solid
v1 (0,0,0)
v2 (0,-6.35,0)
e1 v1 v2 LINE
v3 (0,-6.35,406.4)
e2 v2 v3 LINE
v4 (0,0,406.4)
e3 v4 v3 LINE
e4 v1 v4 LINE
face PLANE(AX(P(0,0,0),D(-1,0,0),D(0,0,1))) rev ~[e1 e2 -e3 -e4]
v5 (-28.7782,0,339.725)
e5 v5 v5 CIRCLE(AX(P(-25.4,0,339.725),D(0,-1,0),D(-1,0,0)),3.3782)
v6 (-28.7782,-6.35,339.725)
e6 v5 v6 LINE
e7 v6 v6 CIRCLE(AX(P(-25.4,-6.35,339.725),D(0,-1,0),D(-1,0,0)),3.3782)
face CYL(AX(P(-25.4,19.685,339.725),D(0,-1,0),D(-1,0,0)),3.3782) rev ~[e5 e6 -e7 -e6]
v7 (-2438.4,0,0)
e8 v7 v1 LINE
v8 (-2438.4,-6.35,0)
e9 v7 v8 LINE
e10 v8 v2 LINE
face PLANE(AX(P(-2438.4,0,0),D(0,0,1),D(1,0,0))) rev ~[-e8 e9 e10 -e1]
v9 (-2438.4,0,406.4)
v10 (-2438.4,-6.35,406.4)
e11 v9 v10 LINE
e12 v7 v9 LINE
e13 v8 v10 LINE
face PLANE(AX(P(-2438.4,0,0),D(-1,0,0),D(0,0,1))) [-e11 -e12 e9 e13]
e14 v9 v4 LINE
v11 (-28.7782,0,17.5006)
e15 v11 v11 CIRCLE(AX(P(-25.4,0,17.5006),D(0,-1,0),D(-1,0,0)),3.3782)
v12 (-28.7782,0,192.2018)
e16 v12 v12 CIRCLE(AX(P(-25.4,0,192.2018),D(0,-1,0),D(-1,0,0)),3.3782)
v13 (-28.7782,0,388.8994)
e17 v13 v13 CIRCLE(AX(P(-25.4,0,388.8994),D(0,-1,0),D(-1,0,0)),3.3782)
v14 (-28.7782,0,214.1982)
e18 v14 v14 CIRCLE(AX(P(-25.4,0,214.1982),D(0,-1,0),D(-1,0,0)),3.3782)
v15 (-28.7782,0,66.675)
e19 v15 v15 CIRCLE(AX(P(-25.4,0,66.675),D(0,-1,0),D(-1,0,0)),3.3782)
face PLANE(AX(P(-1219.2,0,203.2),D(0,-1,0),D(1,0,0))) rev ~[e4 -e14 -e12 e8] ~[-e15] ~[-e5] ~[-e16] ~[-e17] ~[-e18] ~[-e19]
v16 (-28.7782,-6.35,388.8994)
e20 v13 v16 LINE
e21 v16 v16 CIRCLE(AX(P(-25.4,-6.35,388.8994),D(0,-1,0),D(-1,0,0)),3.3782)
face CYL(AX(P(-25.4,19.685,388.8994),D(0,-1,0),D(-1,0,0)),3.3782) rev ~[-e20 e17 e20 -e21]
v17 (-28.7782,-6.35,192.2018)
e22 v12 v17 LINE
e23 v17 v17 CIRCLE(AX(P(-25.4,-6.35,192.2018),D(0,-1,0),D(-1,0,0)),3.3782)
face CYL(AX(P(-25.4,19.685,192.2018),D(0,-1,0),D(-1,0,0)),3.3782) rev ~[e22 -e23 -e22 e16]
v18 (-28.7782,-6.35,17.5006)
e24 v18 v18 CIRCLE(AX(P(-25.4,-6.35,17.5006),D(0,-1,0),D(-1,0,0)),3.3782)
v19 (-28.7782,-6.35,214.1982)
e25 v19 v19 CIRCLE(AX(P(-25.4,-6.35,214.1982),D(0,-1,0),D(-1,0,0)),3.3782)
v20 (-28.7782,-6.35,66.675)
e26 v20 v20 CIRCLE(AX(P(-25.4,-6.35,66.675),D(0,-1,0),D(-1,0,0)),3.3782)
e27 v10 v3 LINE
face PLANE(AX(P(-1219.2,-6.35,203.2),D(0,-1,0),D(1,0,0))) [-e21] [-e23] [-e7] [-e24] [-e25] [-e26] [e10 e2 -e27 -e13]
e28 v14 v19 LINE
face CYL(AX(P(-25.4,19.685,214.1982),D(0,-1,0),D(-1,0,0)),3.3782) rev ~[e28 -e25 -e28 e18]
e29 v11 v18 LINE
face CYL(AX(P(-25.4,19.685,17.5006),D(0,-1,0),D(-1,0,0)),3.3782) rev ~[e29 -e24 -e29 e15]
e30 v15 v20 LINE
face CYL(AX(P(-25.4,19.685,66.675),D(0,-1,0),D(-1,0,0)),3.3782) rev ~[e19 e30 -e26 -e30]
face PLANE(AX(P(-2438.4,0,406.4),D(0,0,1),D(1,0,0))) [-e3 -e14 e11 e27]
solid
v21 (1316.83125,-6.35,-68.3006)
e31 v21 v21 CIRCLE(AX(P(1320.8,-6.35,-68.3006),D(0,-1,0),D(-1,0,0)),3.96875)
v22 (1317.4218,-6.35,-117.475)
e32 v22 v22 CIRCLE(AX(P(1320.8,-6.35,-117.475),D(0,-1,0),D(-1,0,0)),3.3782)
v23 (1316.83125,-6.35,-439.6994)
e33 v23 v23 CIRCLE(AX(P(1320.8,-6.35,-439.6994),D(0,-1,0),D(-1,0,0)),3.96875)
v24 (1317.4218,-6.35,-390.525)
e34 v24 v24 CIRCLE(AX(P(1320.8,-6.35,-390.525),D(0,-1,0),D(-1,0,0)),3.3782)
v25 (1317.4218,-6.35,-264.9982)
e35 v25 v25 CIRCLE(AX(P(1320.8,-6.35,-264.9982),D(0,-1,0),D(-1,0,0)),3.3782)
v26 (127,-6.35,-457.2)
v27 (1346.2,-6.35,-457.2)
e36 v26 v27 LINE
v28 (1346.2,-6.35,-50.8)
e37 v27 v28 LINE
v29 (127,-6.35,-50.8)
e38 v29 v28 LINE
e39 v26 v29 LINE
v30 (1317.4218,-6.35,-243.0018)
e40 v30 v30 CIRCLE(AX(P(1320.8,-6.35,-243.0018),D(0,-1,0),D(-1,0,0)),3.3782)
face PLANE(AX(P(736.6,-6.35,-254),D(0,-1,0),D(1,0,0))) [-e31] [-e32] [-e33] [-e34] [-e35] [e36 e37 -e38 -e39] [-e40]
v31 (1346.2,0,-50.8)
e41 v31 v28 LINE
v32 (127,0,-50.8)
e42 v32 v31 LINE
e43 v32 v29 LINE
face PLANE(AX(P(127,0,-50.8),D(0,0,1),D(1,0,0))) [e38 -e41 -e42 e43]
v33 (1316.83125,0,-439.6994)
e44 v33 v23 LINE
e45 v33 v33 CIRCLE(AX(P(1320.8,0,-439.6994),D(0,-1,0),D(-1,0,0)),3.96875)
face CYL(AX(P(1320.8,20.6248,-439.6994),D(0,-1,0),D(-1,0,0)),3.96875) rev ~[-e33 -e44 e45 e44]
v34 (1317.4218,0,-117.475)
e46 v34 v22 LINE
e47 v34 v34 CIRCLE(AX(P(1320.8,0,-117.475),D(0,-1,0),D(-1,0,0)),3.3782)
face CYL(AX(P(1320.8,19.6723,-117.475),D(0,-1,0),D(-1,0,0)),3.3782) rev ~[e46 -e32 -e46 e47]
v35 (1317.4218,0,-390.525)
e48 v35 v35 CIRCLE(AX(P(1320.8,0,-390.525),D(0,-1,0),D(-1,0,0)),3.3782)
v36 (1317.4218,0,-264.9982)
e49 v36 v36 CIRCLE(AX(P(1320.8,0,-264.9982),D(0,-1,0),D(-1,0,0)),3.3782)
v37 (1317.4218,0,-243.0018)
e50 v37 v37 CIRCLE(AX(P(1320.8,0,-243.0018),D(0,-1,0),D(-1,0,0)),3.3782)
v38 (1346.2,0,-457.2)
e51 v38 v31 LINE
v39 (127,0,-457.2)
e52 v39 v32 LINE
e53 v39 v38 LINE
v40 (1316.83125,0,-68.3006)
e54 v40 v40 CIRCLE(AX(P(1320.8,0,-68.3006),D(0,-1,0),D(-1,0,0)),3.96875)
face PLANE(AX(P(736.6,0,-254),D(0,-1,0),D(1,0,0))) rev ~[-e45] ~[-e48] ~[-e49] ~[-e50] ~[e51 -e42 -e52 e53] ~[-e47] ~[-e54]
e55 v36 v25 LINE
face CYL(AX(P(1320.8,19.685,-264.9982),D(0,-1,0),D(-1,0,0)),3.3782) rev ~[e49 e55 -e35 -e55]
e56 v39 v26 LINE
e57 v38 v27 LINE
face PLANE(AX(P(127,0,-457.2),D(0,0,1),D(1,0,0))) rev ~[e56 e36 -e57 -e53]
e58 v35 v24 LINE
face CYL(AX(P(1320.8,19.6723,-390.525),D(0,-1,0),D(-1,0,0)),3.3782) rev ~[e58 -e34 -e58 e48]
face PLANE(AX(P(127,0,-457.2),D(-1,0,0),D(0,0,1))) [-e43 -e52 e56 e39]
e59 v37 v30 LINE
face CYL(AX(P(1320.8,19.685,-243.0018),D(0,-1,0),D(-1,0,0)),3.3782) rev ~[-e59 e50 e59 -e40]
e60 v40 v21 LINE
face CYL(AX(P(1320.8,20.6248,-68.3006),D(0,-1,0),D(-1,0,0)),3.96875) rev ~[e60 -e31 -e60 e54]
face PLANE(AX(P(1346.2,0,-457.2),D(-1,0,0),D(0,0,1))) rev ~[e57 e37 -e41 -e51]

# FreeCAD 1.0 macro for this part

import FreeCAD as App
import Part
import Sketcher
Q = App.Units.Quantity


def add_polygon(sketch, points):
    """Adds a closed chain of lines whose ends are joined by coincident constraints."""
    first, n = sketch.GeometryCount, len(points)
    for a, b in zip(points, points[1:] + points[:1]):
        sketch.addGeometry(Part.LineSegment(App.Vector(*a, 0), App.Vector(*b, 0)), False)
    for i in range(n):
        sketch.addConstraint(Sketcher.Constraint("Coincident", first + i, 2, first + (i + 1) % n, 1))

doc = App.newDocument("Part")
body = doc.addObject("PartDesign::Body", "Body")

# Sketch on XZ plane
sketch1 = body.newObject("Sketcher::SketchObject", "Sketch")
sketch1.AttachmentSupport = (doc.getObject("XZ_Plane"), [""])
sketch1.MapMode = "FlatFace"
add_polygon(sketch1, [(-2438, 406), (-2438, 0), (0, 0), (0, 406)])  # lines 0-3
sketch1.addConstraint(Sketcher.Constraint("Vertical", 0))
sketch1.addConstraint(Sketcher.Constraint("Horizontal", 1))
sketch1.addConstraint(Sketcher.Constraint("Vertical", 2))
sketch1.addConstraint(Sketcher.Constraint("Horizontal", 3))
sketch1.addConstraint(Sketcher.Constraint("Coincident", 1, 2, -1, 1))
sketch1.addConstraint(Sketcher.Constraint("DistanceX", 1, 1, 1, 2, Q("96 in")))
sketch1.addConstraint(Sketcher.Constraint("DistanceY", 0, 2, 0, 1, Q("16 in")))
pad1 = body.newObject("PartDesign::Pad", "Pad")
pad1.Profile = sketch1
pad1.Length = Q("0.25 in")

# Sketch on XZ plane
sketch2 = body.newObject("Sketcher::SketchObject", "Sketch001")
sketch2.AttachmentSupport = (doc.getObject("XZ_Plane"), [""])
sketch2.MapMode = "FlatFace"
sketch2.addGeometry(Part.Circle(App.Vector(-25.4, 388.9, 0), App.Vector(0, 0, 1), 3.4), False)
sketch2.addGeometry(Part.Circle(App.Vector(-25.4, 339.7, 0), App.Vector(0, 0, 1), 3.4), False)
sketch2.addGeometry(Part.Circle(App.Vector(-25.4, 66.7, 0), App.Vector(0, 0, 1), 3.4), False)
sketch2.addGeometry(Part.Circle(App.Vector(-25.4, 17.5, 0), App.Vector(0, 0, 1), 3.4), False)
sketch2.addConstraint(Sketcher.Constraint("Equal", 0, 1))
sketch2.addConstraint(Sketcher.Constraint("Equal", 1, 2))
sketch2.addConstraint(Sketcher.Constraint("Equal", 2, 3))
sketch2.addConstraint(Sketcher.Constraint("Vertical", 0, 3, 1, 3))
sketch2.addConstraint(Sketcher.Constraint("Vertical", 1, 3, 2, 3))
sketch2.addConstraint(Sketcher.Constraint("Vertical", 2, 3, 3, 3))
sketch2.addConstraint(Sketcher.Constraint("Diameter", 0, Q("0.266 in")))
sketch2.addConstraint(Sketcher.Constraint("DistanceX", 0, 3, -1, 1, Q("1 in")))
sketch2.addConstraint(Sketcher.Constraint("DistanceY", 2, 3, 1, 3, Q("10.75 in")))
sketch2.addConstraint(Sketcher.Constraint("DistanceY", -1, 1, 0, 3, Q("15.311 in")))
sketch2.addConstraint(Sketcher.Constraint("DistanceY", -1, 1, 1, 3, Q("13.375 in")))
sketch2.addConstraint(Sketcher.Constraint("DistanceY", -1, 1, 3, 3, Q("0.689 in")))
doc.recompute()
hole = body.newObject("PartDesign::Hole", "Hole")
hole.Profile = sketch2
hole.ThreadType = "None"
hole.Diameter = Q("0.266 in")
hole.DepthType = "Dimension"
hole.Depth = Q("0.775 in")
hole.DrillPoint = "Angled"
hole.DrillPointAngle = 118
hole.Reversed = True

# Sketch on XZ plane
sketch3 = body.newObject("Sketcher::SketchObject", "Sketch002")
sketch3.AttachmentSupport = (doc.getObject("XZ_Plane"), [""])
sketch3.MapMode = "FlatFace"
sketch3.addGeometry(Part.Circle(App.Vector(-25.4, 214.2, 0), App.Vector(0, 0, 1), 3.4), False)
sketch3.addGeometry(Part.Circle(App.Vector(-25.4, 192.2, 0), App.Vector(0, 0, 1), 3.4), False)
sketch3.addConstraint(Sketcher.Constraint("Equal", 0, 1))
sketch3.addConstraint(Sketcher.Constraint("Vertical", 0, 3, 1, 3))
sketch3.addConstraint(Sketcher.Constraint("Diameter", 0, Q("0.266 in")))
sketch3.addConstraint(Sketcher.Constraint("DistanceX", 0, 3, -1, 1, Q("1 in")))
sketch3.addConstraint(Sketcher.Constraint("DistanceY", -1, 1, 0, 3, Q("8.433 in")))
sketch3.addConstraint(Sketcher.Constraint("DistanceY", -1, 1, 1, 3, Q("7.567 in")))
doc.recompute()
hole2 = body.newObject("PartDesign::Hole", "Hole001")
hole2.Profile = sketch3
hole2.ThreadType = "None"
hole2.Diameter = Q("0.266 in")
hole2.DepthType = "Dimension"
hole2.Depth = Q("0.775 in")
hole2.DrillPoint = "Angled"
hole2.DrillPointAngle = 118
hole2.Reversed = True
body2 = doc.addObject("PartDesign::Body", "Body001")

# Sketch on XZ plane
sketch4 = body2.newObject("Sketcher::SketchObject", "Sketch003")
sketch4.AttachmentSupport = (doc.getObject("XZ_Plane001"), [""])
sketch4.MapMode = "FlatFace"
add_polygon(sketch4, [(127, -51), (127, -457), (1346, -457), (1346, -51)])  # lines 0-3
sketch4.addConstraint(Sketcher.Constraint("Vertical", 0))
sketch4.addConstraint(Sketcher.Constraint("Horizontal", 1))
sketch4.addConstraint(Sketcher.Constraint("Vertical", 2))
sketch4.addConstraint(Sketcher.Constraint("Horizontal", 3))
sketch4.addConstraint(Sketcher.Constraint("DistanceX", 1, 1, 1, 2, Q("48 in")))
sketch4.addConstraint(Sketcher.Constraint("DistanceY", 0, 2, 0, 1, Q("16 in")))
sketch4.addConstraint(Sketcher.Constraint("DistanceX", -1, 1, 0, 2, Q("5 in")))
sketch4.addConstraint(Sketcher.Constraint("DistanceY", 0, 2, -1, 1, Q("18 in")))
pad2 = body2.newObject("PartDesign::Pad", "Pad001")
pad2.Profile = sketch4
pad2.Length = Q("0.25 in")

# Sketch on XZ plane
sketch5 = body2.newObject("Sketcher::SketchObject", "Sketch004")
sketch5.AttachmentSupport = (doc.getObject("XZ_Plane001"), [""])
sketch5.MapMode = "FlatFace"
sketch5.addGeometry(Part.Circle(App.Vector(1320.8, -68.3, 0), App.Vector(0, 0, 1), 4), False)
sketch5.addGeometry(Part.Circle(App.Vector(1320.8, -439.7, 0), App.Vector(0, 0, 1), 4), False)
sketch5.addConstraint(Sketcher.Constraint("Equal", 0, 1))
sketch5.addConstraint(Sketcher.Constraint("Vertical", 0, 3, 1, 3))
sketch5.addConstraint(Sketcher.Constraint("Diameter", 0, Q("0.3125 in")))
sketch5.addConstraint(Sketcher.Constraint("DistanceX", -1, 1, 0, 3, Q("52 in")))
sketch5.addConstraint(Sketcher.Constraint("DistanceY", 0, 3, -1, 1, Q("2.689 in")))
sketch5.addConstraint(Sketcher.Constraint("DistanceY", 1, 3, -1, 1, Q("17.311 in")))
doc.recompute()
hole3 = body2.newObject("PartDesign::Hole", "Hole002")
hole3.Profile = sketch5
hole3.ThreadType = "None"
hole3.Diameter = Q("0.3125 in")
hole3.DepthType = "Dimension"
hole3.Depth = Q("0.812 in")
hole3.DrillPoint = "Angled"
hole3.DrillPointAngle = 118
hole3.Reversed = True

# Sketch on XZ plane
sketch6 = body2.newObject("Sketcher::SketchObject", "Sketch005")
sketch6.AttachmentSupport = (doc.getObject("XZ_Plane001"), [""])
sketch6.MapMode = "FlatFace"
sketch6.addGeometry(Part.Circle(App.Vector(1320.8, -68.3, 0), App.Vector(0, 0, 1), 3.4), False)
sketch6.addGeometry(Part.Circle(App.Vector(1320.8, -117.5, 0), App.Vector(0, 0, 1), 3.4), False)
sketch6.addGeometry(Part.Circle(App.Vector(1320.8, -390.5, 0), App.Vector(0, 0, 1), 3.4), False)
sketch6.addGeometry(Part.Circle(App.Vector(1320.8, -439.7, 0), App.Vector(0, 0, 1), 3.4), False)
sketch6.addConstraint(Sketcher.Constraint("Equal", 0, 1))
sketch6.addConstraint(Sketcher.Constraint("Equal", 1, 2))
sketch6.addConstraint(Sketcher.Constraint("Equal", 2, 3))
sketch6.addConstraint(Sketcher.Constraint("Vertical", 0, 3, 1, 3))
sketch6.addConstraint(Sketcher.Constraint("Vertical", 1, 3, 2, 3))
sketch6.addConstraint(Sketcher.Constraint("Vertical", 2, 3, 3, 3))
sketch6.addConstraint(Sketcher.Constraint("Diameter", 0, Q("0.266 in")))
sketch6.addConstraint(Sketcher.Constraint("DistanceX", -1, 1, 0, 3, Q("52 in")))
sketch6.addConstraint(Sketcher.Constraint("DistanceY", 2, 3, 1, 3, Q("10.75 in")))
sketch6.addConstraint(Sketcher.Constraint("DistanceY", 0, 3, -1, 1, Q("2.689 in")))
sketch6.addConstraint(Sketcher.Constraint("DistanceY", 1, 3, -1, 1, Q("4.625 in")))
sketch6.addConstraint(Sketcher.Constraint("DistanceY", 3, 3, -1, 1, Q("17.311 in")))
doc.recompute()
hole4 = body2.newObject("PartDesign::Hole", "Hole003")
hole4.Profile = sketch6
hole4.ThreadType = "None"
hole4.Diameter = Q("0.266 in")
hole4.DepthType = "Dimension"
hole4.Depth = Q("0.7745 in")
hole4.DrillPoint = "Angled"
hole4.DrillPointAngle = 118
hole4.Reversed = True

# Sketch on XZ plane
sketch7 = body2.newObject("Sketcher::SketchObject", "Sketch006")
sketch7.AttachmentSupport = (doc.getObject("XZ_Plane001"), [""])
sketch7.MapMode = "FlatFace"
sketch7.addGeometry(Part.Circle(App.Vector(1320.8, -243, 0), App.Vector(0, 0, 1), 3.4), False)
sketch7.addGeometry(Part.Circle(App.Vector(1320.8, -265, 0), App.Vector(0, 0, 1), 3.4), False)
sketch7.addConstraint(Sketcher.Constraint("Equal", 0, 1))
sketch7.addConstraint(Sketcher.Constraint("Vertical", 0, 3, 1, 3))
sketch7.addConstraint(Sketcher.Constraint("Diameter", 0, Q("0.266 in")))
sketch7.addConstraint(Sketcher.Constraint("DistanceX", -1, 1, 0, 3, Q("52 in")))
sketch7.addConstraint(Sketcher.Constraint("DistanceY", 0, 3, -1, 1, Q("9.567 in")))
sketch7.addConstraint(Sketcher.Constraint("DistanceY", 1, 3, -1, 1, Q("10.433 in")))
doc.recompute()
hole5 = body2.newObject("PartDesign::Hole", "Hole004")
hole5.Profile = sketch7
hole5.ThreadType = "None"
hole5.Diameter = Q("0.266 in")
hole5.DepthType = "Dimension"
hole5.Depth = Q("0.775 in")
hole5.DrillPoint = "Angled"
hole5.DrillPointAngle = 118
hole5.Reversed = True

doc.recompute()
